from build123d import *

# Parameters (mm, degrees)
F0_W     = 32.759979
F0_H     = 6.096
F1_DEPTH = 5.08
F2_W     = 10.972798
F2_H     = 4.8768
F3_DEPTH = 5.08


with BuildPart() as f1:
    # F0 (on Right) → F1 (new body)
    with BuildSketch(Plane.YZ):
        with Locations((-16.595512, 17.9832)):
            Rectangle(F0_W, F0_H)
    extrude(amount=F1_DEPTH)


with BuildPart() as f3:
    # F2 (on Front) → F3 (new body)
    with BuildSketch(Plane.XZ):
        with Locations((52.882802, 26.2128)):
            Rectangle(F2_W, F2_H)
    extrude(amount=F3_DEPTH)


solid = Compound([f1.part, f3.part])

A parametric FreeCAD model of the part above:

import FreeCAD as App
import Part
import Sketcher
Q = App.Units.Quantity

doc = App.newDocument("Part")
body = doc.addObject("PartDesign::Body", "Body")

# Sketch on YZ plane
sketch1 = doc.addObject("Sketcher::SketchObject", "Sketch")
body.addObject(sketch1)
sketch1.AttachmentSupport = (doc.YZ_Plane, [""])
sketch1.MapMode = "FlatFace"
sketch1.addGeometry(Part.LineSegment(App.Vector(-32.975502, 21.0312, 0), App.Vector(-32.975502, 14.9352, 0)), False)
sketch1.addGeometry(Part.LineSegment(App.Vector(-32.975502, 14.9352, 0), App.Vector(-0.215523, 14.9352, 0)), False)
sketch1.addGeometry(Part.LineSegment(App.Vector(-0.215523, 14.9352, 0), App.Vector(-0.215523, 21.0312, 0)), False)
sketch1.addGeometry(Part.LineSegment(App.Vector(-0.215523, 21.0312, 0), App.Vector(-32.975502, 21.0312, 0)), False)
sketch1.addConstraint(Sketcher.Constraint("Coincident", 0, 2, 1, 1))
sketch1.addConstraint(Sketcher.Constraint("Coincident", 1, 2, 2, 1))
sketch1.addConstraint(Sketcher.Constraint("Coincident", 2, 2, 3, 1))
sketch1.addConstraint(Sketcher.Constraint("Coincident", 3, 2, 0, 1))
sketch1.addConstraint(Sketcher.Constraint("Vertical", 0))
sketch1.addConstraint(Sketcher.Constraint("Horizontal", 1))
sketch1.addConstraint(Sketcher.Constraint("Vertical", 2))
sketch1.addConstraint(Sketcher.Constraint("Horizontal", 3))
sketch1.addConstraint(Sketcher.Constraint("DistanceY", 0, 2, 0, 1, Q("0.24 in")))
sketch1.addConstraint(Sketcher.Constraint("DistanceY", -1, 1, 0, 2, Q("0.588 in")))
sketch1.addConstraint(Sketcher.Constraint("DistanceX", 1, 1, 1, 2, Q("32.759979 mm")))
sketch1.addConstraint(Sketcher.Constraint("DistanceX", 0, 2, -1, 1, Q("32.975502 mm")))
pad1 = doc.addObject("PartDesign::Pad", "Pad")
body.addObject(pad1)
pad1.Profile = sketch1
pad1.Length = Q("0.2 in")
body2 = doc.addObject("PartDesign::Body", "Body001")

# Sketch on XZ plane
sketch2 = doc.addObject("Sketcher::SketchObject", "Sketch001")
body2.addObject(sketch2)
sketch2.AttachmentSupport = (doc.getObject("XZ_Plane001"), [""])
sketch2.MapMode = "FlatFace"
sketch2.addGeometry(Part.LineSegment(App.Vector(47.396403, 28.6512, 0), App.Vector(47.396403, 23.7744, 0)), False)
sketch2.addGeometry(Part.LineSegment(App.Vector(47.396403, 23.7744, 0), App.Vector(58.369201, 23.7744, 0)), False)
sketch2.addGeometry(Part.LineSegment(App.Vector(58.369201, 23.7744, 0), App.Vector(58.369201, 28.6512, 0)), False)
sketch2.addGeometry(Part.LineSegment(App.Vector(58.369201, 28.6512, 0), App.Vector(47.396403, 28.6512, 0)), False)
sketch2.addConstraint(Sketcher.Constraint("Coincident", 0, 2, 1, 1))
sketch2.addConstraint(Sketcher.Constraint("Coincident", 1, 2, 2, 1))
sketch2.addConstraint(Sketcher.Constraint("Coincident", 2, 2, 3, 1))
sketch2.addConstraint(Sketcher.Constraint("Coincident", 3, 2, 0, 1))
sketch2.addConstraint(Sketcher.Constraint("Vertical", 0))
sketch2.addConstraint(Sketcher.Constraint("Horizontal", 1))
sketch2.addConstraint(Sketcher.Constraint("Vertical", 2))
sketch2.addConstraint(Sketcher.Constraint("Horizontal", 3))
sketch2.addConstraint(Sketcher.Constraint("DistanceX", 1, 1, 1, 2, Q("0.4319999 in")))
sketch2.addConstraint(Sketcher.Constraint("DistanceY", 0, 2, 0, 1, Q("0.192 in")))
sketch2.addConstraint(Sketcher.Constraint("DistanceX", -1, 1, 0, 2, Q("1.8660001 in")))
sketch2.addConstraint(Sketcher.Constraint("DistanceY", -1, 1, 0, 2, Q("0.936 in")))
pad2 = doc.addObject("PartDesign::Pad", "Pad001")
body2.addObject(pad2)
pad2.Profile = sketch2
pad2.Length = Q("0.2 in")

doc.recompute()
